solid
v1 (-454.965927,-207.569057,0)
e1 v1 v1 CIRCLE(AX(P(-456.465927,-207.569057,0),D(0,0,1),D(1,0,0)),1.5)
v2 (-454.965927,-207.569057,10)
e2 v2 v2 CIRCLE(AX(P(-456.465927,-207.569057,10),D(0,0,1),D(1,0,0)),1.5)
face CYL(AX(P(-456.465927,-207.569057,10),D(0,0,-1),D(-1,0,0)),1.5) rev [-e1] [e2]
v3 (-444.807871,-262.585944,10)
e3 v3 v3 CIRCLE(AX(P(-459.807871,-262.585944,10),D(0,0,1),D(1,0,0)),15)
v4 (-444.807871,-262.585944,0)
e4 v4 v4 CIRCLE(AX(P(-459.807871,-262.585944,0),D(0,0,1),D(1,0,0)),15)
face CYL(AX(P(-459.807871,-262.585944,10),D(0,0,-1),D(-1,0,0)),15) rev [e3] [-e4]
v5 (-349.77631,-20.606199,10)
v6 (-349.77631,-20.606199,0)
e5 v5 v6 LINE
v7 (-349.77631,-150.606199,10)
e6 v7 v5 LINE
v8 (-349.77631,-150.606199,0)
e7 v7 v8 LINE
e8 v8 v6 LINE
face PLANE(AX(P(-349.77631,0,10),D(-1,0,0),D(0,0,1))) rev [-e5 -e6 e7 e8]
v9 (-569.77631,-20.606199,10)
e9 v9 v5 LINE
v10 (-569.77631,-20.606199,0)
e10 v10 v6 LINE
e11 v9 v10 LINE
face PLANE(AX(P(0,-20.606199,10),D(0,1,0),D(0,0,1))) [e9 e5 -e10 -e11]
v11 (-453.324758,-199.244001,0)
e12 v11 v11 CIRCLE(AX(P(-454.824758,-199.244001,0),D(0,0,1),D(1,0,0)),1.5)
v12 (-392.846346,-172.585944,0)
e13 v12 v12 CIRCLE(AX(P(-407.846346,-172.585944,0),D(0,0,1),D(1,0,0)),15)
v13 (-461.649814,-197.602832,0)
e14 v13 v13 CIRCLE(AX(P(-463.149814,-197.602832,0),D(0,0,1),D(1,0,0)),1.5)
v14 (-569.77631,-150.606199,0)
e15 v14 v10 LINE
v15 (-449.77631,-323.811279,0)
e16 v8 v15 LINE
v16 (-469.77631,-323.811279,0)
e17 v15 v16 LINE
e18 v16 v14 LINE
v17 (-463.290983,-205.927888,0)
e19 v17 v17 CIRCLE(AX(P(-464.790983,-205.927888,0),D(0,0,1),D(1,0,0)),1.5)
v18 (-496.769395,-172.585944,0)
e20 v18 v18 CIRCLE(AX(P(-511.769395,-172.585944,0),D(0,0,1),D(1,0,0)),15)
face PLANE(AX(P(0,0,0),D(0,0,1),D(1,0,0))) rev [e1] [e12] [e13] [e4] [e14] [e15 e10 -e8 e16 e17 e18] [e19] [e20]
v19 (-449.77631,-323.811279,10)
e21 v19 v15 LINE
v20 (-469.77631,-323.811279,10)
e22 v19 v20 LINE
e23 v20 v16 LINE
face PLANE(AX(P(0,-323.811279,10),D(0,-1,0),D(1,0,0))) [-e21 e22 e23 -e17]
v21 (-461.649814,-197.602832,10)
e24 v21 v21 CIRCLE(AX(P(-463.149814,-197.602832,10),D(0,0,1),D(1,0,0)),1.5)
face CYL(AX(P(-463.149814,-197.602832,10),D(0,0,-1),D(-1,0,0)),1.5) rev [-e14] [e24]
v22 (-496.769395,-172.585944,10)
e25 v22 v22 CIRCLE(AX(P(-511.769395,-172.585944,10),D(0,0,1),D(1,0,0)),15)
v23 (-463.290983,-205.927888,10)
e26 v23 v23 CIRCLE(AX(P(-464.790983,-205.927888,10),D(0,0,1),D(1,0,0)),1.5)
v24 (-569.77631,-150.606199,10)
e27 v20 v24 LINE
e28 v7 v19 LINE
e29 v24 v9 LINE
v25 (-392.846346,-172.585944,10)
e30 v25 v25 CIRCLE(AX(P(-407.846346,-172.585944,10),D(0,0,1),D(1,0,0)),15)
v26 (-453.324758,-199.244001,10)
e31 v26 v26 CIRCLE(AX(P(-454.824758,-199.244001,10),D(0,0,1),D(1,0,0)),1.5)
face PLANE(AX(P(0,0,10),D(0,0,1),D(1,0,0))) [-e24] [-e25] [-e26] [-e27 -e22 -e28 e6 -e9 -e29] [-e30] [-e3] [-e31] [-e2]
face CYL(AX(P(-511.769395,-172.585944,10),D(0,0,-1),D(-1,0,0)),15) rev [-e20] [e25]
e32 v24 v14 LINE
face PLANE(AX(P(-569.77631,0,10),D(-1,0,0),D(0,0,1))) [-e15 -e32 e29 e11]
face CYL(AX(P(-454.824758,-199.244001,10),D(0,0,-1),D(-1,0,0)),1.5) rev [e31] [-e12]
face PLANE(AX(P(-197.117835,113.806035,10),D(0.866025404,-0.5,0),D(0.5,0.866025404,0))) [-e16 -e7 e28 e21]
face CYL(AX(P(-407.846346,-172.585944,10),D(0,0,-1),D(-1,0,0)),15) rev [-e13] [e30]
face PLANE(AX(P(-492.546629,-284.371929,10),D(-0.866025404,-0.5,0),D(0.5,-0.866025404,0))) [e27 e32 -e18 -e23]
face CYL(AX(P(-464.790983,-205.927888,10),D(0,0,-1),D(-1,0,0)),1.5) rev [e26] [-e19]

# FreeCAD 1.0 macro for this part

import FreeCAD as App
import Part
import Sketcher
Q = App.Units.Quantity

doc = App.newDocument("Part")
body = doc.addObject("PartDesign::Body", "Body")

# Sketch on XY plane
sketch1 = body.newObject("Sketcher::SketchObject", "Sketch")
sketch1.AttachmentSupport = (doc.getObject("XY_Plane"), [""])
sketch1.MapMode = "FlatFace"
sketch1.addGeometry([
    Part.LineSegment(App.Vector(-449.8, -323.8, 0), App.Vector(-349.8, -150.6, 0)),  # 0
    Part.LineSegment(App.Vector(-349.8, -150.6, 0), App.Vector(-349.8, -20.6, 0)),  # 1
    Part.LineSegment(App.Vector(-349.8, -20.6, 0), App.Vector(-569.8, -20.6, 0)),  # 2
    Part.LineSegment(App.Vector(-569.8, -20.6, 0), App.Vector(-569.8, -150.6, 0)),  # 3
    Part.LineSegment(App.Vector(-569.8, -150.6, 0), App.Vector(-469.8, -323.8, 0)),  # 4
    Part.LineSegment(App.Vector(-469.8, -323.8, 0), App.Vector(-449.8, -323.8, 0)),  # 5
    Part.Circle(App.Vector(-459.8, -262.6, 0), App.Vector(0, 0, 1), 15),  # 6
    Part.Circle(App.Vector(-407.8, -172.6, 0), App.Vector(0, 0, 1), 15),  # 7
    Part.Circle(App.Vector(-511.8, -172.6, 0), App.Vector(0, 0, 1), 15),  # 8
    Part.Circle(App.Vector(-454.8, -199.2, 0), App.Vector(0, 0, 1), 1.5),  # 9
    Part.Circle(App.Vector(-464.8, -205.9, 0), App.Vector(0, 0, 1), 1.5),  # 10
    Part.Circle(App.Vector(-456.5, -207.6, 0), App.Vector(0, 0, 1), 1.5),  # 11
    Part.Circle(App.Vector(-463.1, -197.6, 0), App.Vector(0, 0, 1), 1.5),  # 12
], False)
sketch1.addConstraint([
    Sketcher.Constraint("Coincident", 0, 2, 1, 1),
    Sketcher.Constraint("Coincident", 1, 2, 2, 1),
    Sketcher.Constraint("Coincident", 2, 2, 3, 1),
    Sketcher.Constraint("Coincident", 3, 2, 4, 1),
    Sketcher.Constraint("Coincident", 4, 2, 5, 1),
    Sketcher.Constraint("Coincident", 5, 2, 0, 1),
    Sketcher.Constraint("Vertical", 1),
    Sketcher.Constraint("Horizontal", 2),
    Sketcher.Constraint("Vertical", 3),
    Sketcher.Constraint("Horizontal", 5),
    Sketcher.Constraint("Equal", 6, 7),
    Sketcher.Constraint("Equal", 7, 8),
    Sketcher.Constraint("Equal", 9, 10),
    Sketcher.Constraint("Equal", 10, 11),
    Sketcher.Constraint("Equal", 11, 12),
    Sketcher.Constraint("Horizontal", 7, 3, 8, 3),
    Sketcher.Constraint("Horizontal", 0, 2, 3, 2),
    Sketcher.Constraint("Equal", 0, 4),
    Sketcher.Constraint("Diameter", 6, Q("30 mm")),
    Sketcher.Constraint("Diameter", 9, Q("3 mm")),
    Sketcher.Constraint("DistanceX", 2, 2, 2, 1, Q("220 mm")),
    Sketcher.Constraint("DistanceX", 5, 1, 5, 2, Q("20 mm")),
    Sketcher.Constraint("DistanceY", 1, 1, 1, 2, Q("130 mm")),
    Sketcher.Constraint("Angle", 0, Q("60 deg")),
    Sketcher.Constraint("DistanceY", 6, 3, 7, 3, Q("90 mm")),
    Sketcher.Constraint("DistanceY", 9, 3, -1, 1, Q("199.244001 mm")),
    Sketcher.Constraint("DistanceY", 0, 2, -1, 1, Q("150.606199 mm")),
    Sketcher.Constraint("DistanceX", 6, 3, -1, 1, Q("459.807871 mm")),
    Sketcher.Constraint("DistanceY", 10, 3, -1, 1, Q("205.927888 mm")),
    Sketcher.Constraint("DistanceY", 12, 3, -1, 1, Q("197.602832 mm")),
    Sketcher.Constraint("DistanceX", 0, 2, -1, 1, Q("349.77631 mm")),
    Sketcher.Constraint("DistanceX", 8, 3, 7, 3, Q("103.923048 mm")),
    Sketcher.Constraint("DistanceX", 9, 3, 7, 3, Q("46.978412 mm")),
    Sketcher.Constraint("DistanceX", 8, 3, 10, 3, Q("46.978412 mm")),
    Sketcher.Constraint("DistanceY", 11, 3, 10, 3, Q("1.641169 mm")),
    Sketcher.Constraint("DistanceX", 11, 3, 9, 3, Q("1.641169 mm")),
    Sketcher.Constraint("DistanceX", 10, 3, 12, 3, Q("1.641169 mm")),
    Sketcher.Constraint("DistanceX", 9, 3, 0, 2, Q("105.048448 mm")),
    Sketcher.Constraint("DistanceY", 6, 3, -1, 1, Q("262.585944 mm")),
])
pad1 = body.newObject("PartDesign::Pad", "Pad")
pad1.Profile = sketch1
pad1.Length = 10

doc.recompute()
